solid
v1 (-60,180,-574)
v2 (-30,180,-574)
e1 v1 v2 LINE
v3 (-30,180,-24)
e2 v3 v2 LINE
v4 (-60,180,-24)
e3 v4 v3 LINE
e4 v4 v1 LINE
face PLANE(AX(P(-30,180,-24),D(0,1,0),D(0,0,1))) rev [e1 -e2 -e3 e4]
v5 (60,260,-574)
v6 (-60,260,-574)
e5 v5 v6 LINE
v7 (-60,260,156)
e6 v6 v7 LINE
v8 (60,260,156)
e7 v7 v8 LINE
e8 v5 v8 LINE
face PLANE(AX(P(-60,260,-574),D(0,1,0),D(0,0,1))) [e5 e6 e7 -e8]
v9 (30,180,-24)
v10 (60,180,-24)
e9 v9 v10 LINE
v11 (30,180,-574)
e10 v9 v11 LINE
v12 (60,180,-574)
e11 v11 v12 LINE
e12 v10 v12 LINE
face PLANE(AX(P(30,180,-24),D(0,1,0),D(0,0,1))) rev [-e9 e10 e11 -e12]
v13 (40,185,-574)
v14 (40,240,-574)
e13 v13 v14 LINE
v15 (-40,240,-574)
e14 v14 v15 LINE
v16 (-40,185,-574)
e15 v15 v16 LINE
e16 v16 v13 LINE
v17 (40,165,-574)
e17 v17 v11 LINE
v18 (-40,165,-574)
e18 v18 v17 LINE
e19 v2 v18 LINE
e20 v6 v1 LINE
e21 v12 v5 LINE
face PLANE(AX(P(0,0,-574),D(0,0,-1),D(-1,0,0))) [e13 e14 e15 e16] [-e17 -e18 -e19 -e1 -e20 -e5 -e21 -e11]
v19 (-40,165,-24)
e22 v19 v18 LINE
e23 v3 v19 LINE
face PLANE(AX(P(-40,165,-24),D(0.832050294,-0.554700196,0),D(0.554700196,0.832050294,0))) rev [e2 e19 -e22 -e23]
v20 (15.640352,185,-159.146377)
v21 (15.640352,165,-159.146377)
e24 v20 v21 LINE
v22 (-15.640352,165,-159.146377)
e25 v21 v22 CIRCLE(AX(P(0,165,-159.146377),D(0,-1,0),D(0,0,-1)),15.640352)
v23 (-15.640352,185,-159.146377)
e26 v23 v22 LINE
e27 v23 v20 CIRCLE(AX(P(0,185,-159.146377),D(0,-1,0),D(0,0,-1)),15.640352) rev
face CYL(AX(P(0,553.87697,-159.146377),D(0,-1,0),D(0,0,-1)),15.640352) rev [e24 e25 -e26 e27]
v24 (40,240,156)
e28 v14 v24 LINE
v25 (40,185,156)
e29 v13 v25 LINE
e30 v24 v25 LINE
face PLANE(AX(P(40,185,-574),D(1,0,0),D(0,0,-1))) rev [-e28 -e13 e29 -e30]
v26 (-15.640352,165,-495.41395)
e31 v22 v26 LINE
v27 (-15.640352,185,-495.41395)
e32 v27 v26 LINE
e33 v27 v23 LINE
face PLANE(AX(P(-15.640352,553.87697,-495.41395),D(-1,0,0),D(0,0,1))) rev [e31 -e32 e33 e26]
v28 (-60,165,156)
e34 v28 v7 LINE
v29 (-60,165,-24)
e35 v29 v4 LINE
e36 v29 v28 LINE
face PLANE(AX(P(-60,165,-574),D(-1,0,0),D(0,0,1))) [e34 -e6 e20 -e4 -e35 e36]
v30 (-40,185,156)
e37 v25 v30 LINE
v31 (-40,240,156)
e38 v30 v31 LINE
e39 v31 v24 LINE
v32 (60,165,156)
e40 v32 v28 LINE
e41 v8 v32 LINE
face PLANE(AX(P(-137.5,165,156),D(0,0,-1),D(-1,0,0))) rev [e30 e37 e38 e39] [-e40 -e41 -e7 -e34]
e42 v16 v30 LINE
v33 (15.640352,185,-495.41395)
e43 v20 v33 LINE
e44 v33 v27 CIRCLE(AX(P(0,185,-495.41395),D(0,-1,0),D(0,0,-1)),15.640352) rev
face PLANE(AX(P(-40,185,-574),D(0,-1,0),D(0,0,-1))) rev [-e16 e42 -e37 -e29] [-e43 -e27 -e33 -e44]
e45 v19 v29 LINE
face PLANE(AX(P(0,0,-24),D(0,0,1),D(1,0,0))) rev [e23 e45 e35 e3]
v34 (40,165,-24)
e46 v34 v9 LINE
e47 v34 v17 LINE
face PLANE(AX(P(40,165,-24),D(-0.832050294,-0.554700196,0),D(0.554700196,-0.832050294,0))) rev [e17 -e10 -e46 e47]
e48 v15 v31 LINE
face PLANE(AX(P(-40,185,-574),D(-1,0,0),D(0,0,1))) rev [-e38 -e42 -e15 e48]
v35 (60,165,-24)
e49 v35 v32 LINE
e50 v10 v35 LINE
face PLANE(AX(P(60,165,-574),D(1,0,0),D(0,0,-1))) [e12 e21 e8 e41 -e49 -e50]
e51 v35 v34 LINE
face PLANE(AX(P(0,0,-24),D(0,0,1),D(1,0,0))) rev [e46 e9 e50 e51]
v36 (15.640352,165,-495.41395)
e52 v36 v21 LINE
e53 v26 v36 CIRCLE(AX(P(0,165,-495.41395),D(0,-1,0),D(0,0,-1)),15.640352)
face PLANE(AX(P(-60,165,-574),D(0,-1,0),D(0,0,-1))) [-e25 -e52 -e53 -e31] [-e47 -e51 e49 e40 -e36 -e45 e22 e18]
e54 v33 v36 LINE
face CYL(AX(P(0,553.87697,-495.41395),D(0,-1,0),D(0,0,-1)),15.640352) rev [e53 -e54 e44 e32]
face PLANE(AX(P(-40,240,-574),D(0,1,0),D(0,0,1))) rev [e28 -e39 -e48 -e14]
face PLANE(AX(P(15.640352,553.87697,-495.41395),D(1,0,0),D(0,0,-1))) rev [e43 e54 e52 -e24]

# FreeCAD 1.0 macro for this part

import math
import FreeCAD as App
import Part
import Sketcher

V = App.Vector
Q = App.Units.Quantity

doc = App.newDocument("Part")
params = doc.addObject("Spreadsheet::Sheet", "Params")
for row, (alias, value) in enumerate([
    ("sketch1_width", "120 mm"),
    ("sketch1_width2", "80 mm"),
    ("sketch1_height", "95 mm"),
    ("sketch1_height2", "55 mm"),
    ("pad1_length", "156 mm"),
    ("pad1_length2", "574 mm"),
    ("sketch2_width", "30 mm"),
    ("sketch2_width2", "20 mm"),
    ("sketch2_height", "15 mm"),
    ("pocket1_length", "550 mm"),
    ("pocket2_length", "20 mm"),
], start=1):
    params.set(f"A{row}", alias)
    params.set(f"B{row}", "=" + value)
    params.setAlias(f"B{row}", alias)

body = doc.addObject("PartDesign::Body", "Body")

# Sketch on XY plane
sketch1 = body.newObject("Sketcher::SketchObject", "Sketch")
sketch1.AttachmentSupport = (doc.getObject("XY_Plane"), [""])
sketch1.MapMode = "FlatFace"
sketch1.addGeometry(Part.LineSegment(V(-60, 260, 0), V(-60, 165, 0)), False)
sketch1.addGeometry(Part.LineSegment(V(-60, 165, 0), V(60, 165, 0)), False)
sketch1.addGeometry(Part.LineSegment(V(60, 165, 0), V(60, 260, 0)), False)
sketch1.addGeometry(Part.LineSegment(V(60, 260, 0), V(-60, 260, 0)), False)
sketch1.addGeometry(Part.LineSegment(V(40, 185, 0), V(-40, 185, 0)), False)
sketch1.addGeometry(Part.LineSegment(V(-40, 185, 0), V(-40, 240, 0)), False)
sketch1.addGeometry(Part.LineSegment(V(-40, 240, 0), V(40, 240, 0)), False)
sketch1.addGeometry(Part.LineSegment(V(40, 240, 0), V(40, 185, 0)), False)
sketch1.addConstraint(Sketcher.Constraint("Coincident", 0, 2, 1, 1))
sketch1.addConstraint(Sketcher.Constraint("Coincident", 1, 2, 2, 1))
sketch1.addConstraint(Sketcher.Constraint("Coincident", 2, 2, 3, 1))
sketch1.addConstraint(Sketcher.Constraint("Coincident", 3, 2, 0, 1))
sketch1.addConstraint(Sketcher.Constraint("Coincident", 4, 2, 5, 1))
sketch1.addConstraint(Sketcher.Constraint("Coincident", 5, 2, 6, 1))
sketch1.addConstraint(Sketcher.Constraint("Coincident", 6, 2, 7, 1))
sketch1.addConstraint(Sketcher.Constraint("Coincident", 7, 2, 4, 1))
sketch1.addConstraint(Sketcher.Constraint("Vertical", 0))
sketch1.addConstraint(Sketcher.Constraint("Horizontal", 1))
sketch1.addConstraint(Sketcher.Constraint("Vertical", 2))
sketch1.addConstraint(Sketcher.Constraint("Horizontal", 3))
sketch1.addConstraint(Sketcher.Constraint("Horizontal", 4))
sketch1.addConstraint(Sketcher.Constraint("Vertical", 5))
sketch1.addConstraint(Sketcher.Constraint("Horizontal", 6))
sketch1.addConstraint(Sketcher.Constraint("Vertical", 7))
sketch1.addConstraint(Sketcher.Constraint("DistanceX", 1, 1, 1, 2, Q("120 mm")))
sketch1.addConstraint(Sketcher.Constraint("DistanceX", 4, 2, 4, 1, Q("80 mm")))
sketch1.addConstraint(Sketcher.Constraint("DistanceY", 0, 2, 0, 1, Q("95 mm")))
sketch1.addConstraint(Sketcher.Constraint("DistanceY", 5, 1, 5, 2, Q("55 mm")))
sketch1.addConstraint(Sketcher.Constraint("DistanceX", 0, 2, -1, 1, Q("60 mm")))
sketch1.addConstraint(Sketcher.Constraint("DistanceY", -1, 1, 0, 2, Q("165 mm")))
sketch1.addConstraint(Sketcher.Constraint("DistanceX", 4, 2, -1, 1, Q("40 mm")))
sketch1.addConstraint(Sketcher.Constraint("DistanceY", -1, 1, 4, 2, Q("185 mm")))
sketch1.setExpression("Constraints[16]", "Params.sketch1_width")
sketch1.setExpression("Constraints[17]", "Params.sketch1_width2")
sketch1.setExpression("Constraints[18]", "Params.sketch1_height")
sketch1.setExpression("Constraints[19]", "Params.sketch1_height2")
pad1 = body.newObject("PartDesign::Pad", "Pad")
pad1.Profile = sketch1
pad1.Type = "TwoLengths"
pad1.setExpression("Length", "Params.pad1_length")
pad1.setExpression("Length2", "Params.pad1_length2")

# Sketch on XY plane
sketch2 = body.newObject("Sketcher::SketchObject", "Sketch001")
sketch2.AttachmentSupport = (doc.getObject("XY_Plane"), [""])
sketch2.MapMode = "FlatFace"
sketch2.AttachmentOffset = App.Placement(V(0, 0, -574), App.Rotation())
sketch2.addGeometry(Part.LineSegment(V(40, 165, 0), V(30, 180, 0)), False)
sketch2.addGeometry(Part.LineSegment(V(30, 180, 0), V(60, 180, 0)), False)
sketch2.addGeometry(Part.LineSegment(V(60, 180, 0), V(60, 165, 0)), False)
sketch2.addGeometry(Part.LineSegment(V(60, 165, 0), V(40, 165, 0)), False)
sketch2.addGeometry(Part.LineSegment(V(-60, 180, 0), V(-30, 180, 0)), False)
sketch2.addGeometry(Part.LineSegment(V(-30, 180, 0), V(-40, 165, 0)), False)
sketch2.addGeometry(Part.LineSegment(V(-40, 165, 0), V(-60, 165, 0)), False)
sketch2.addGeometry(Part.LineSegment(V(-60, 165, 0), V(-60, 180, 0)), False)
sketch2.addConstraint(Sketcher.Constraint("Coincident", 0, 2, 1, 1))
sketch2.addConstraint(Sketcher.Constraint("Coincident", 1, 2, 2, 1))
sketch2.addConstraint(Sketcher.Constraint("Coincident", 2, 2, 3, 1))
sketch2.addConstraint(Sketcher.Constraint("Coincident", 3, 2, 0, 1))
sketch2.addConstraint(Sketcher.Constraint("Coincident", 4, 2, 5, 1))
sketch2.addConstraint(Sketcher.Constraint("Coincident", 5, 2, 6, 1))
sketch2.addConstraint(Sketcher.Constraint("Coincident", 6, 2, 7, 1))
sketch2.addConstraint(Sketcher.Constraint("Coincident", 7, 2, 4, 1))
sketch2.addConstraint(Sketcher.Constraint("Horizontal", 1))
sketch2.addConstraint(Sketcher.Constraint("Vertical", 2))
sketch2.addConstraint(Sketcher.Constraint("Horizontal", 3))
sketch2.addConstraint(Sketcher.Constraint("Horizontal", 4))
sketch2.addConstraint(Sketcher.Constraint("Horizontal", 6))
sketch2.addConstraint(Sketcher.Constraint("Vertical", 7))
sketch2.addConstraint(Sketcher.Constraint("Symmetric", 0, 2, 4, 2, -2))
sketch2.addConstraint(Sketcher.Constraint("Symmetric", 3, 2, 5, 2, -2))
sketch2.addConstraint(Sketcher.Constraint("Equal", 1, 4))
sketch2.addConstraint(Sketcher.Constraint("DistanceX", 1, 1, 1, 2, Q("30 mm")))
sketch2.addConstraint(Sketcher.Constraint("DistanceX", 3, 2, 3, 1, Q("20 mm")))
sketch2.addConstraint(Sketcher.Constraint("DistanceY", 2, 2, 2, 1, Q("15 mm")))
sketch2.addConstraint(Sketcher.Constraint("DistanceX", -1, 1, 0, 2, Q("30 mm")))
sketch2.addConstraint(Sketcher.Constraint("DistanceY", -1, 1, 0, 2, Q("180 mm")))
sketch2.setExpression("Constraints[17]", "Params.sketch2_width")
sketch2.setExpression("Constraints[18]", "Params.sketch2_width2")
sketch2.setExpression("Constraints[19]", "Params.sketch2_height")
pocket1 = body.newObject("PartDesign::Pocket", "Pocket")
pocket1.Profile = sketch2
pocket1.setExpression("Length", "Params.pocket1_length")
pocket1.Reversed = True

# Sketch on XZ plane
sketch3 = body.newObject("Sketcher::SketchObject", "Sketch002")
sketch3.AttachmentSupport = (doc.getObject("XZ_Plane"), [""])
sketch3.MapMode = "FlatFace"
sketch3.AttachmentOffset = App.Placement(V(0, 0, -165), App.Rotation())
sketch3.addGeometry(Part.LineSegment(V(-16, -159, 0), V(-16, -495, 0)), False)
sketch3.addGeometry(Part.ArcOfCircle(Part.Circle(V(0, -495, 0), V(0, 0, 1), 16), math.radians(180), math.radians(360)), False)
sketch3.addGeometry(Part.LineSegment(V(16, -495, 0), V(16, -159, 0)), False)
sketch3.addGeometry(Part.ArcOfCircle(Part.Circle(V(0, -159, 0), V(0, 0, 1), 16), math.radians(0), math.radians(180)), False)
sketch3.addConstraint(Sketcher.Constraint("Tangent", 0, 2, 1, 1))
sketch3.addConstraint(Sketcher.Constraint("Tangent", 1, 2, 2, 1))
sketch3.addConstraint(Sketcher.Constraint("Tangent", 2, 2, 3, 1))
sketch3.addConstraint(Sketcher.Constraint("Tangent", 3, 2, 0, 1))
sketch3.addConstraint(Sketcher.Constraint("Vertical", 0))
sketch3.addConstraint(Sketcher.Constraint("Vertical", 2))
sketch3.addConstraint(Sketcher.Constraint("PointOnObject", 1, 3, -2))
sketch3.addConstraint(Sketcher.Constraint("Radius", 1, Q("15.640352 mm")))
sketch3.addConstraint(Sketcher.Constraint("DistanceY", 0, 2, 0, 1, Q("336.267573 mm")))
sketch3.addConstraint(Sketcher.Constraint("DistanceY", 1, 3, -1, 1, Q("495.41395 mm")))
pocket2 = body.newObject("PartDesign::Pocket", "Pocket001")
pocket2.Profile = sketch3
pocket2.setExpression("Length", "Params.pocket2_length")

doc.recompute()
